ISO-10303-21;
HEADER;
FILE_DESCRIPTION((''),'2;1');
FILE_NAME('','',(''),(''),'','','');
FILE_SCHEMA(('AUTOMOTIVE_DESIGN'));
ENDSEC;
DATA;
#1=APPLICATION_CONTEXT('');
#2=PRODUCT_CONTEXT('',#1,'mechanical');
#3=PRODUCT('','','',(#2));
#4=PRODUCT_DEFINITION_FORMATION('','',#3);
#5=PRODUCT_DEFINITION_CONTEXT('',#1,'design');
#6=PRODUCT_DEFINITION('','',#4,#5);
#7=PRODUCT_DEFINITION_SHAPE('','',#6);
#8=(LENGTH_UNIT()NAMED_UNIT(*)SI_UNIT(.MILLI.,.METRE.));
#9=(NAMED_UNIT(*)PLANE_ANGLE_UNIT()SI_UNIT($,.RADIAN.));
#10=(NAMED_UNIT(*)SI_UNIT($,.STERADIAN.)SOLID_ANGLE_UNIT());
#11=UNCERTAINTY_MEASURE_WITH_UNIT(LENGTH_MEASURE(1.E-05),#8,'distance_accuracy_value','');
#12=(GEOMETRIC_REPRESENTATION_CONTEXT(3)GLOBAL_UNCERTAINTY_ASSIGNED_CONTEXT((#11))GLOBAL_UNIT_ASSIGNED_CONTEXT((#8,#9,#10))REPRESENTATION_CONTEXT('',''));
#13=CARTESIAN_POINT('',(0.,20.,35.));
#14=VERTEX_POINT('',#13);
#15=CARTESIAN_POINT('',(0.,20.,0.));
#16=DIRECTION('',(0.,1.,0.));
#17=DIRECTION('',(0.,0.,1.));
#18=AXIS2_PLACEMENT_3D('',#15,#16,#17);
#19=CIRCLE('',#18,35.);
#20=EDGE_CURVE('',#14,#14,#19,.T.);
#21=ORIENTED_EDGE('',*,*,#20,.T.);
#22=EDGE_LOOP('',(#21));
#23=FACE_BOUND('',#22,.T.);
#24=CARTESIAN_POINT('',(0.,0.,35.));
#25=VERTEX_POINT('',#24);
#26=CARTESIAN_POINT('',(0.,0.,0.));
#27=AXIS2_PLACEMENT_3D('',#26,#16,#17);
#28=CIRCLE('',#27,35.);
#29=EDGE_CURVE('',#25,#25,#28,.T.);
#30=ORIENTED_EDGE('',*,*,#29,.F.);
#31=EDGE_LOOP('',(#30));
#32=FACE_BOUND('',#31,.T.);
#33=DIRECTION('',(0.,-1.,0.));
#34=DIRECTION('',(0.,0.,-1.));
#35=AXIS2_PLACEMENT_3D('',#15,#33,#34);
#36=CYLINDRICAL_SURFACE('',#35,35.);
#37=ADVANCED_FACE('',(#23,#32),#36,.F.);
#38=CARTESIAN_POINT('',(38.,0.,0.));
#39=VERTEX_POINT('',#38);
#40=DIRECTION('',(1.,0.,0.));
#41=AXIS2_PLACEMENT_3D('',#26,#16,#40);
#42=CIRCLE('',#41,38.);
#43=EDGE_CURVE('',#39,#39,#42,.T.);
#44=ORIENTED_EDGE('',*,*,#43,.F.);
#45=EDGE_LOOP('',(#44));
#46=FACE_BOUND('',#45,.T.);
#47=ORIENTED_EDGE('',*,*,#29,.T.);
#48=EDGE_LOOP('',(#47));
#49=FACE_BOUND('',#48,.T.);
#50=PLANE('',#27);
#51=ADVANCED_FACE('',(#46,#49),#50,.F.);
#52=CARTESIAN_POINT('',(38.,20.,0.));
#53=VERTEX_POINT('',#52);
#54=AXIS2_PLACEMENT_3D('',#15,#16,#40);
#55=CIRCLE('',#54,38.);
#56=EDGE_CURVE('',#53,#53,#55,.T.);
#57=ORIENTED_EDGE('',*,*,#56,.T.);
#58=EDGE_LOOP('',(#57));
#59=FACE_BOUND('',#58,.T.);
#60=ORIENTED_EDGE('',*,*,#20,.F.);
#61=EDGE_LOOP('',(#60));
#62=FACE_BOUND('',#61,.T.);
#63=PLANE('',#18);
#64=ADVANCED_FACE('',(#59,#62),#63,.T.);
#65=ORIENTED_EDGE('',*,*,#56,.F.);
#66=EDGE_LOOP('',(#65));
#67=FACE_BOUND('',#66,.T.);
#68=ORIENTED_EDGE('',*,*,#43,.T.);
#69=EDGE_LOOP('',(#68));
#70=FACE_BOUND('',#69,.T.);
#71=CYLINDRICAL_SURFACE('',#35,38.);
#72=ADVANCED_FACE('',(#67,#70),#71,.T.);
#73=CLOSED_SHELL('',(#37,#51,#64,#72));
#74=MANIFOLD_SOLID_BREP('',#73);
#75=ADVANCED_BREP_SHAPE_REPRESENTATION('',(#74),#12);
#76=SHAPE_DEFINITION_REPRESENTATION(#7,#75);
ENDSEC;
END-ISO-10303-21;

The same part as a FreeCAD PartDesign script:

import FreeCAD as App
import Part
import Sketcher

V = App.Vector

doc = App.newDocument("Part")
body = doc.addObject("PartDesign::Body", "Body")

# Sketch on XZ plane
sketch1 = doc.addObject("Sketcher::SketchObject", "Sketch")
body.addObject(sketch1)
sketch1.AttachmentSupport = (doc.XZ_Plane, [""])
sketch1.MapMode = "FlatFace"
sketch1.addGeometry(Part.Circle(V(0, 0, 0), V(0, 0, 1), 38), False)
sketch1.addGeometry(Part.Circle(V(0, 0, 0), V(0, 0, 1), 35), False)
sketch1.addConstraint(Sketcher.Constraint("Coincident", 0, 3, -1, 1))
sketch1.addConstraint(Sketcher.Constraint("Coincident", 1, 3, -1, 1))
sketch1.addConstraint(Sketcher.Constraint("Diameter", 0, 76.0))
sketch1.addConstraint(Sketcher.Constraint("Diameter", 1, 70.0))
pad1 = doc.addObject("PartDesign::Pad", "Pad")
body.addObject(pad1)
pad1.Profile = sketch1
pad1.Length = 20
pad1.Reversed = True

doc.recompute()
